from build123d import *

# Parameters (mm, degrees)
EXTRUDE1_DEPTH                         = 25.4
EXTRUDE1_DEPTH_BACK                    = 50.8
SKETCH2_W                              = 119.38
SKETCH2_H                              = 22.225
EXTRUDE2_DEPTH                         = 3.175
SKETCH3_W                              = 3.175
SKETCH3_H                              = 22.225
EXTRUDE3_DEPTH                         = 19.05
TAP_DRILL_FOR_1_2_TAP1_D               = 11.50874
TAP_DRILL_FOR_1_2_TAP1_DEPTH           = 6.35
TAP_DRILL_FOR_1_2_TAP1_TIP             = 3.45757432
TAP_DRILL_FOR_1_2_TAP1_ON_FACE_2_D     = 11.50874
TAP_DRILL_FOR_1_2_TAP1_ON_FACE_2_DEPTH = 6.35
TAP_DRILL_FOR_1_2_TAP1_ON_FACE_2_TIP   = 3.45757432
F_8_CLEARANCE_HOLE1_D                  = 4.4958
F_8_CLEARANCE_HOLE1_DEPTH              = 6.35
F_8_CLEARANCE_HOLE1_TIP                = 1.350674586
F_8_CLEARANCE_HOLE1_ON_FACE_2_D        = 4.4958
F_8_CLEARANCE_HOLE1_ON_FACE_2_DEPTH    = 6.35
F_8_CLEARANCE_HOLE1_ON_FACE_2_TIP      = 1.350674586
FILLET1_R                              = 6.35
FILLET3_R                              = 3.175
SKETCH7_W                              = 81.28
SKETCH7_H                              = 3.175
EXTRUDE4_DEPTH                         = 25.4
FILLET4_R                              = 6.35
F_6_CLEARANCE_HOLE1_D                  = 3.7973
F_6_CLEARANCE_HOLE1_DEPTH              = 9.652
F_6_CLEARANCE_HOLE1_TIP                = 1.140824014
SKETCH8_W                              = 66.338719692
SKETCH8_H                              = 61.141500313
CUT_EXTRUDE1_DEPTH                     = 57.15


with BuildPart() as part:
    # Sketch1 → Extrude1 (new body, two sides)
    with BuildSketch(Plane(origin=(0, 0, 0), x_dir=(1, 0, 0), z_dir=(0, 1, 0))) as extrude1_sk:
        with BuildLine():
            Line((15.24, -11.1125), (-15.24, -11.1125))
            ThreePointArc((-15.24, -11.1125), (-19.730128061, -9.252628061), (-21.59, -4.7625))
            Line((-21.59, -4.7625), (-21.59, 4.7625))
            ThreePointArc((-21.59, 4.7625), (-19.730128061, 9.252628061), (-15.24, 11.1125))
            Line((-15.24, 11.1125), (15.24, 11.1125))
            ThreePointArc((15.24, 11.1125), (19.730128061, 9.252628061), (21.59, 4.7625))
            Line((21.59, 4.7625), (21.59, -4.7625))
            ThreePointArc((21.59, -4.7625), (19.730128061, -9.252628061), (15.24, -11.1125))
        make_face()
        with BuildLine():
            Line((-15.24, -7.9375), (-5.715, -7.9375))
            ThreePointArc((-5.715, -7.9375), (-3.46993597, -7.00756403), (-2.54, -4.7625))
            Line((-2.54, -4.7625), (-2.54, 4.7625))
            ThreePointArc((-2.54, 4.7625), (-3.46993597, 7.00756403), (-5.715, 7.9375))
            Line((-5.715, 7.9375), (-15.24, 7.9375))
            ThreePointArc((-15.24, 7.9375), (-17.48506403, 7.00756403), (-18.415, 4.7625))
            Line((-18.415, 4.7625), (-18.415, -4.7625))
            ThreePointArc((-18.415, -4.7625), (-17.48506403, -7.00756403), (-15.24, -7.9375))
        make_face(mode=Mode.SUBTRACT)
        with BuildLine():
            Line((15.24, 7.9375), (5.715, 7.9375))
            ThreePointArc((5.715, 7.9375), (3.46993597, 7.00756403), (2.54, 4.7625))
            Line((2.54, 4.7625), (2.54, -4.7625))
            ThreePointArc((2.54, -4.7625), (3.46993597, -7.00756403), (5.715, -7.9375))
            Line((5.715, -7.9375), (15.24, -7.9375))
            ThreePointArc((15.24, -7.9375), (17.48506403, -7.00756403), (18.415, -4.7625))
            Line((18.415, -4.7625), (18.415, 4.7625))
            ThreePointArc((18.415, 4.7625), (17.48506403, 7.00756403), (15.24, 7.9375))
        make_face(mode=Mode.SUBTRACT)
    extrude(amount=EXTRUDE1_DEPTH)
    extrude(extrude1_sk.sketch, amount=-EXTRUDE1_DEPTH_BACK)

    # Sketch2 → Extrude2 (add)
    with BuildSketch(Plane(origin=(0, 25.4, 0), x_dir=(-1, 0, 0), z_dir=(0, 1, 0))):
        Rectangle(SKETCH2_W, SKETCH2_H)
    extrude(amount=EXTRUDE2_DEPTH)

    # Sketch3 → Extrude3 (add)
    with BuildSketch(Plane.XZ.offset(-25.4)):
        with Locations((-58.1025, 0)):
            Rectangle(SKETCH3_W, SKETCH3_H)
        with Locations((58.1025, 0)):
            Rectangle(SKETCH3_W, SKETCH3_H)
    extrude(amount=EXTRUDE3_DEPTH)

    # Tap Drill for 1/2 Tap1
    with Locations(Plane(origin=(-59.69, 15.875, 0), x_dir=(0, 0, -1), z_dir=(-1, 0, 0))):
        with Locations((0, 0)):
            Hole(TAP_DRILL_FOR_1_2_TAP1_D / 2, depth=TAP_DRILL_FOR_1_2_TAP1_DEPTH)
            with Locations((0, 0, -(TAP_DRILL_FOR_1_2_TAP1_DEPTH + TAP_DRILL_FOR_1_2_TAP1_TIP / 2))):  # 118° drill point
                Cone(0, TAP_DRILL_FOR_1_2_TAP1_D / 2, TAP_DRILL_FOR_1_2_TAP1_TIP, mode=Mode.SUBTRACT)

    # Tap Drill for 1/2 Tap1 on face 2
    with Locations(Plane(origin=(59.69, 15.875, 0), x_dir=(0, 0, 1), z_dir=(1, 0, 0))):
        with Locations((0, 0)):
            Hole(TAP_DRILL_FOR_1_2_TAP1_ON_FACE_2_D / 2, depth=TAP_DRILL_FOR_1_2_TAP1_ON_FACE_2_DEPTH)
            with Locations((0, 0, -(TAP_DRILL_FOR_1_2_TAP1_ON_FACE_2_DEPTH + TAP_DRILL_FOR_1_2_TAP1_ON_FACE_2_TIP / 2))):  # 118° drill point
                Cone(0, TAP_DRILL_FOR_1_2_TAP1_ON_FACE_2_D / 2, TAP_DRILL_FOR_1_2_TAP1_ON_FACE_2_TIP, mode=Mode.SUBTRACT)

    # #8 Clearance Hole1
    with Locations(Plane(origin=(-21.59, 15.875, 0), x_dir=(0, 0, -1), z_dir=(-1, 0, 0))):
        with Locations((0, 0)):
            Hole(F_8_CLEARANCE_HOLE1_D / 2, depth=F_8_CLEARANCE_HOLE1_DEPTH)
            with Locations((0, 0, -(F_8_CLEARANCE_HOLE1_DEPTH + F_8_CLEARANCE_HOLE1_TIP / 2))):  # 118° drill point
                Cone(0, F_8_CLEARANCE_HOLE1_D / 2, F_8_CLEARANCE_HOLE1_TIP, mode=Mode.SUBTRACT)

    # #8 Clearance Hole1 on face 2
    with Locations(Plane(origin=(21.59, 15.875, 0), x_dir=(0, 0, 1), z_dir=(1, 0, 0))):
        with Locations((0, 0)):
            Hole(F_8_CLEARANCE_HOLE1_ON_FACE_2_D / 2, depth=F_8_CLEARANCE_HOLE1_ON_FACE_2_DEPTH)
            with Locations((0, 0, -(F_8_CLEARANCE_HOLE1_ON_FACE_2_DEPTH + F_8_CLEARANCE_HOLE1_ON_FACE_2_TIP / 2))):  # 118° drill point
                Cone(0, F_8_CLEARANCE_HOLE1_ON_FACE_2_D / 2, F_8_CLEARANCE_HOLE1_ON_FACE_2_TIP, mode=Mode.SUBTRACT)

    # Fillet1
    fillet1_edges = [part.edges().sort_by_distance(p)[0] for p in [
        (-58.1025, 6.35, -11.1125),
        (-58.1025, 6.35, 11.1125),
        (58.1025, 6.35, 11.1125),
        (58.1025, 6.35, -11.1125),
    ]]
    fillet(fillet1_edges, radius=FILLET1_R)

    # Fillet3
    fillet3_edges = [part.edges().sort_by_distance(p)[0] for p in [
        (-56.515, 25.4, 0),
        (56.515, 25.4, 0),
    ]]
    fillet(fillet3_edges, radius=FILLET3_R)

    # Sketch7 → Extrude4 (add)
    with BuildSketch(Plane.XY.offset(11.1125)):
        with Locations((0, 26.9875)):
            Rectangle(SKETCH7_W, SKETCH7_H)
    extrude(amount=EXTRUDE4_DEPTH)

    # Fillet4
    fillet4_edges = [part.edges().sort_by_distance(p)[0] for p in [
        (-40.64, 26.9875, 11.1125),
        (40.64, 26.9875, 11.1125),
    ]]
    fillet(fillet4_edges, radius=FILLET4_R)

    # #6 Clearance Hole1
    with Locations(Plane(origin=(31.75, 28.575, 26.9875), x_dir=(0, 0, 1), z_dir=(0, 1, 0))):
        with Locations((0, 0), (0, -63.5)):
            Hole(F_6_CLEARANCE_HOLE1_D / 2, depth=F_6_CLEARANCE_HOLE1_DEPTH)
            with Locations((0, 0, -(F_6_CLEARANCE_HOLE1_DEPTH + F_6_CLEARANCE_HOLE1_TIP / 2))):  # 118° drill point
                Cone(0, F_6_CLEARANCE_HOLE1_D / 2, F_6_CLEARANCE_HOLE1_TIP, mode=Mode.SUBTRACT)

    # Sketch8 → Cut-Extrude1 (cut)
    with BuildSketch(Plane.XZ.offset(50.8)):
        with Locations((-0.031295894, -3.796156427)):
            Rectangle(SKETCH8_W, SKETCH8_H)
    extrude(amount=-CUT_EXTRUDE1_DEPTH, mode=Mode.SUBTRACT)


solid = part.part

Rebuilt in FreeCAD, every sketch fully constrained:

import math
import FreeCAD as App
import Part
import Sketcher
from FreeCAD import Vector
Q = App.Units.Quantity


def edges_at(feature, points):
    """Names of the edges that pass closest to the given points."""
    edges = feature.Shape.Edges
    near = lambda p: min(range(len(edges)), key=lambda i: edges[i].distToShape(Part.Vertex(*p))[0])
    return sorted({f"Edge{near(p) + 1}" for p in points})


def add_polygon(sketch, points):
    """Adds a closed chain of lines whose ends are joined by coincident constraints."""
    first, n = sketch.GeometryCount, len(points)
    for a, b in zip(points, points[1:] + points[:1]):
        sketch.addGeometry(Part.LineSegment(App.Vector(*a, 0), App.Vector(*b, 0)), False)
    for i in range(n):
        sketch.addConstraint(Sketcher.Constraint("Coincident", first + i, 2, first + (i + 1) % n, 1))

doc = App.newDocument("Part")
body = doc.addObject("PartDesign::Body", "Body")

sketch1 = body.newObject("Sketcher::SketchObject", "Sketch")
sketch1.AttachmentSupport = (doc.getObject("XZ_Plane"), [""])
sketch1.MapMode = "FlatFace"
sketch1.addGeometry(Part.LineSegment(Vector(-15.2, 11.1, 0), Vector(15.2, 11.1, 0)), False)
sketch1.addGeometry(Part.ArcOfCircle(Part.Circle(Vector(15.2, 4.8, 0), Vector(0, 0, 1), 6.3), math.radians(0), math.radians(90)), False)
sketch1.addGeometry(Part.LineSegment(Vector(21.6, 4.8, 0), Vector(21.6, -4.8, 0)), False)
sketch1.addGeometry(Part.ArcOfCircle(Part.Circle(Vector(15.2, -4.8, 0), Vector(0, 0, 1), 6.3), math.radians(-90), math.radians(0)), False)
sketch1.addGeometry(Part.LineSegment(Vector(15.2, -11.1, 0), Vector(-15.2, -11.1, 0)), False)
sketch1.addGeometry(Part.ArcOfCircle(Part.Circle(Vector(-15.2, -4.8, 0), Vector(0, 0, 1), 6.3), math.radians(180), math.radians(270)), False)
sketch1.addGeometry(Part.LineSegment(Vector(-21.6, -4.8, 0), Vector(-21.6, 4.8, 0)), False)
sketch1.addGeometry(Part.ArcOfCircle(Part.Circle(Vector(-15.2, 4.8, 0), Vector(0, 0, 1), 6.3), math.radians(90), math.radians(180)), False)
sketch1.addGeometry(Part.ArcOfCircle(Part.Circle(Vector(15.2, -4.8, 0), Vector(0, 0, 1), 3.2), math.radians(-90), math.radians(0)), False)
sketch1.addGeometry(Part.LineSegment(Vector(18.4, -4.8, 0), Vector(18.4, 4.8, 0)), False)
sketch1.addGeometry(Part.ArcOfCircle(Part.Circle(Vector(15.2, 4.8, 0), Vector(0, 0, 1), 3.2), math.radians(0), math.radians(90)), False)
sketch1.addGeometry(Part.LineSegment(Vector(15.2, 7.9, 0), Vector(5.7, 7.9, 0)), False)
sketch1.addGeometry(Part.ArcOfCircle(Part.Circle(Vector(5.7, 4.8, 0), Vector(0, 0, 1), 3.2), math.radians(90), math.radians(180)), False)
sketch1.addGeometry(Part.LineSegment(Vector(2.5, 4.8, 0), Vector(2.5, -4.8, 0)), False)
sketch1.addGeometry(Part.ArcOfCircle(Part.Circle(Vector(5.7, -4.8, 0), Vector(0, 0, 1), 3.2), math.radians(-180), math.radians(-90)), False)
sketch1.addGeometry(Part.LineSegment(Vector(5.7, -7.9, 0), Vector(15.2, -7.9, 0)), False)
sketch1.addGeometry(Part.ArcOfCircle(Part.Circle(Vector(-15.2, 4.8, 0), Vector(0, 0, 1), 3.2), math.radians(90), math.radians(180)), False)
sketch1.addGeometry(Part.LineSegment(Vector(-18.4, 4.8, 0), Vector(-18.4, -4.8, 0)), False)
sketch1.addGeometry(Part.ArcOfCircle(Part.Circle(Vector(-15.2, -4.8, 0), Vector(0, 0, 1), 3.2), math.radians(-180), math.radians(-90)), False)
sketch1.addGeometry(Part.LineSegment(Vector(-15.2, -7.9, 0), Vector(-5.7, -7.9, 0)), False)
sketch1.addGeometry(Part.ArcOfCircle(Part.Circle(Vector(-5.7, -4.8, 0), Vector(0, 0, 1), 3.2), math.radians(-90), math.radians(0)), False)
sketch1.addGeometry(Part.LineSegment(Vector(-2.5, -4.8, 0), Vector(-2.5, 4.8, 0)), False)
sketch1.addGeometry(Part.ArcOfCircle(Part.Circle(Vector(-5.7, 4.8, 0), Vector(0, 0, 1), 3.2), math.radians(0), math.radians(90)), False)
sketch1.addGeometry(Part.LineSegment(Vector(-5.7, 7.9, 0), Vector(-15.2, 7.9, 0)), False)
sketch1.addConstraint(Sketcher.Constraint("Tangent", 0, 2, 1, 2))
sketch1.addConstraint(Sketcher.Constraint("Tangent", 1, 1, 2, 1))
sketch1.addConstraint(Sketcher.Constraint("Tangent", 2, 2, 3, 2))
sketch1.addConstraint(Sketcher.Constraint("Tangent", 3, 1, 4, 1))
sketch1.addConstraint(Sketcher.Constraint("Tangent", 4, 2, 5, 2))
sketch1.addConstraint(Sketcher.Constraint("Tangent", 5, 1, 6, 1))
sketch1.addConstraint(Sketcher.Constraint("Tangent", 6, 2, 7, 2))
sketch1.addConstraint(Sketcher.Constraint("Tangent", 7, 1, 0, 1))
sketch1.addConstraint(Sketcher.Constraint("Tangent", 8, 2, 9, 1))
sketch1.addConstraint(Sketcher.Constraint("Tangent", 9, 2, 10, 1))
sketch1.addConstraint(Sketcher.Constraint("Tangent", 10, 2, 11, 1))
sketch1.addConstraint(Sketcher.Constraint("Tangent", 11, 2, 12, 1))
sketch1.addConstraint(Sketcher.Constraint("Tangent", 12, 2, 13, 1))
sketch1.addConstraint(Sketcher.Constraint("Tangent", 13, 2, 14, 1))
sketch1.addConstraint(Sketcher.Constraint("Tangent", 14, 2, 15, 1))
sketch1.addConstraint(Sketcher.Constraint("Tangent", 15, 2, 8, 1))
sketch1.addConstraint(Sketcher.Constraint("Tangent", 16, 2, 17, 1))
sketch1.addConstraint(Sketcher.Constraint("Tangent", 17, 2, 18, 1))
sketch1.addConstraint(Sketcher.Constraint("Tangent", 18, 2, 19, 1))
sketch1.addConstraint(Sketcher.Constraint("Tangent", 19, 2, 20, 1))
sketch1.addConstraint(Sketcher.Constraint("Tangent", 20, 2, 21, 1))
sketch1.addConstraint(Sketcher.Constraint("Tangent", 21, 2, 22, 1))
sketch1.addConstraint(Sketcher.Constraint("Tangent", 22, 2, 23, 1))
sketch1.addConstraint(Sketcher.Constraint("Tangent", 23, 2, 16, 1))
sketch1.addConstraint(Sketcher.Constraint("Horizontal", 0))
sketch1.addConstraint(Sketcher.Constraint("Vertical", 2))
sketch1.addConstraint(Sketcher.Constraint("Horizontal", 4))
sketch1.addConstraint(Sketcher.Constraint("Vertical", 6))
sketch1.addConstraint(Sketcher.Constraint("Vertical", 9))
sketch1.addConstraint(Sketcher.Constraint("Horizontal", 11))
sketch1.addConstraint(Sketcher.Constraint("Vertical", 13))
sketch1.addConstraint(Sketcher.Constraint("Horizontal", 15))
sketch1.addConstraint(Sketcher.Constraint("Vertical", 17))
sketch1.addConstraint(Sketcher.Constraint("Horizontal", 19))
sketch1.addConstraint(Sketcher.Constraint("Vertical", 21))
sketch1.addConstraint(Sketcher.Constraint("Horizontal", 23))
sketch1.addConstraint(Sketcher.Constraint("Coincident", 8, 3, 3, 3))
sketch1.addConstraint(Sketcher.Constraint("Coincident", 10, 3, 1, 3))
sketch1.addConstraint(Sketcher.Constraint("Coincident", 16, 3, 7, 3))
sketch1.addConstraint(Sketcher.Constraint("Coincident", 18, 3, 5, 3))
sketch1.addConstraint(Sketcher.Constraint("Equal", 1, 3))
sketch1.addConstraint(Sketcher.Constraint("Equal", 3, 5))
sketch1.addConstraint(Sketcher.Constraint("Equal", 5, 7))
sketch1.addConstraint(Sketcher.Constraint("Equal", 10, 12))
sketch1.addConstraint(Sketcher.Constraint("Equal", 12, 14))
sketch1.addConstraint(Sketcher.Constraint("Equal", 14, 16))
sketch1.addConstraint(Sketcher.Constraint("Equal", 18, 20))
sketch1.addConstraint(Sketcher.Constraint("Equal", 20, 22))
sketch1.addConstraint(Sketcher.Constraint("Symmetric", 1, 3, 5, 3, -1, 1))
sketch1.addConstraint(Sketcher.Constraint("Equal", 15, 19))
sketch1.addConstraint(Sketcher.Constraint("Equal", 23, 2))
sketch1.addConstraint(Sketcher.Constraint("Radius", 1, Q("0.25 in")))
sketch1.addConstraint(Sketcher.Constraint("DistanceX", 0, 1, 0, 2, Q("1.2 in")))
sketch1.addConstraint(Sketcher.Constraint("Radius", 8, Q("0.125 in")))
sketch1.addConstraint(Sketcher.Constraint("DistanceX", -1, 1, 12, 2, Q("0.1 in")))
pad1 = body.newObject("PartDesign::Pad", "Pad")
pad1.Profile = sketch1
pad1.Type = "TwoLengths"
pad1.Length = Q("1 in")
pad1.Length2 = Q("2 in")
pad1.Reversed = True

sketch2 = body.newObject("Sketcher::SketchObject", "Sketch001")
sketch2.AttachmentSupport = (doc.getObject("XZ_Plane"), [""])
sketch2.MapMode = "FlatFace"
sketch2.AttachmentOffset = App.Placement(Vector(0, 0, -1 * 25.4), App.Rotation())
add_polygon(sketch2, [(60, 11), (60, -11), (-60, -11), (-60, 11)])
sketch2.addConstraint(Sketcher.Constraint("Vertical", 0))
sketch2.addConstraint(Sketcher.Constraint("Horizontal", 1))
sketch2.addConstraint(Sketcher.Constraint("Vertical", 2))
sketch2.addConstraint(Sketcher.Constraint("Horizontal", 3))
sketch2.addConstraint(Sketcher.Constraint("Symmetric", 0, 2, 2, 2, -1, 1))
sketch2.addConstraint(Sketcher.Constraint("DistanceX", 1, 2, 1, 1, Q("4.7 in")))
sketch2.addConstraint(Sketcher.Constraint("DistanceY", 0, 2, 0, 1, Q("0.875 in")))
pad2 = body.newObject("PartDesign::Pad", "Pad001")
pad2.Profile = sketch2
pad2.Length = Q("0.125 in")
pad2.Reversed = True

sketch3 = body.newObject("Sketcher::SketchObject", "Sketch002")
sketch3.AttachmentSupport = (doc.getObject("XZ_Plane"), [""])
sketch3.MapMode = "FlatFace"
sketch3.AttachmentOffset = App.Placement(Vector(0, 0, -1 * 25.4), App.Rotation())
add_polygon(sketch3, [(-59.7, 11.1), (-59.7, -11.1), (-56.5, -11.1), (-56.5, 11.1)])
add_polygon(sketch3, [(56.5, 11.1), (56.5, -11.1), (59.7, -11.1), (59.7, 11.1)])
sketch3.addConstraint(Sketcher.Constraint("Vertical", 0))
sketch3.addConstraint(Sketcher.Constraint("Horizontal", 1))
sketch3.addConstraint(Sketcher.Constraint("Vertical", 2))
sketch3.addConstraint(Sketcher.Constraint("Horizontal", 3))
sketch3.addConstraint(Sketcher.Constraint("Vertical", 4))
sketch3.addConstraint(Sketcher.Constraint("Horizontal", 5))
sketch3.addConstraint(Sketcher.Constraint("Vertical", 6))
sketch3.addConstraint(Sketcher.Constraint("Horizontal", 7))
sketch3.addConstraint(Sketcher.Constraint("Symmetric", 2, 2, 4, 2, -1, 1))
sketch3.addConstraint(Sketcher.Constraint("Symmetric", 0, 2, 6, 2, -1, 1))
sketch3.addConstraint(Sketcher.Constraint("Horizontal", 1, 2, 4, 2))
sketch3.addConstraint(Sketcher.Constraint("DistanceX", 0, 2, 5, 2, Q("4.7 in")))
sketch3.addConstraint(Sketcher.Constraint("DistanceX", 1, 1, 1, 2, Q("0.125 in")))
sketch3.addConstraint(Sketcher.Constraint("DistanceY", 0, 2, 0, 1, Q("0.875 in")))
pad3 = body.newObject("PartDesign::Pad", "Pad002")
pad3.Profile = sketch3
pad3.Length = Q("0.75 in")

sketch4 = body.newObject("Sketcher::SketchObject", "Sketch003")
sketch4.AttachmentSupport = (doc.getObject("YZ_Plane"), [""])
sketch4.MapMode = "FlatFace"
sketch4.AttachmentOffset = App.Placement(Vector(0, 0, -2.35 * 25.4), App.Rotation())
sketch4.addGeometry(Part.Circle(Vector(16, 0, 0), Vector(0, 0, 1), 6), False)
sketch4.addConstraint(Sketcher.Constraint("PointOnObject", 0, 3, -1))
sketch4.addConstraint(Sketcher.Constraint("Diameter", 0, Q("0.4531 in")))
sketch4.addConstraint(Sketcher.Constraint("DistanceX", -1, 1, 0, 3, Q("0.625 in")))
doc.recompute()
hole = body.newObject("PartDesign::Hole", "Hole")
hole.Profile = sketch4
hole.ThreadType = "None"
hole.Diameter = Q("0.4531 in")
hole.DepthType = "Dimension"
hole.Depth = Q("0.25 in")
hole.DrillPoint = "Angled"
hole.DrillPointAngle = 118
hole.Reversed = True

sketch5 = body.newObject("Sketcher::SketchObject", "Sketch004")
sketch5.AttachmentSupport = (doc.getObject("YZ_Plane"), [""])
sketch5.MapMode = "FlatFace"
sketch5.AttachmentOffset = App.Placement(Vector(0, 0, 2.35 * 25.4), App.Rotation())
sketch5.addGeometry(Part.Circle(Vector(16, 0, 0), Vector(0, 0, 1), 6), False)
sketch5.addConstraint(Sketcher.Constraint("PointOnObject", 0, 3, -1))
sketch5.addConstraint(Sketcher.Constraint("Diameter", 0, Q("0.4531 in")))
sketch5.addConstraint(Sketcher.Constraint("DistanceX", -1, 1, 0, 3, Q("0.625 in")))
doc.recompute()
hole2 = body.newObject("PartDesign::Hole", "Hole001")
hole2.Profile = sketch5
hole2.ThreadType = "None"
hole2.Diameter = Q("0.4531 in")
hole2.DepthType = "Dimension"
hole2.Depth = Q("0.25 in")
hole2.DrillPoint = "Angled"
hole2.DrillPointAngle = 118

sketch6 = body.newObject("Sketcher::SketchObject", "Sketch005")
sketch6.AttachmentSupport = (doc.getObject("YZ_Plane"), [""])
sketch6.MapMode = "FlatFace"
sketch6.AttachmentOffset = App.Placement(Vector(0, 0, -0.85 * 25.4), App.Rotation())
sketch6.addGeometry(Part.Circle(Vector(15.9, 0, 0), Vector(0, 0, 1), 2.2), False)
sketch6.addConstraint(Sketcher.Constraint("PointOnObject", 0, 3, -1))
sketch6.addConstraint(Sketcher.Constraint("Diameter", 0, Q("0.177 in")))
sketch6.addConstraint(Sketcher.Constraint("DistanceX", -1, 1, 0, 3, Q("0.625 in")))
doc.recompute()
hole3 = body.newObject("PartDesign::Hole", "Hole002")
hole3.Profile = sketch6
hole3.ThreadType = "None"
hole3.Diameter = Q("0.177 in")
hole3.DepthType = "Dimension"
hole3.Depth = Q("0.25 in")
hole3.DrillPoint = "Angled"
hole3.DrillPointAngle = 118
hole3.Reversed = True

sketch7 = body.newObject("Sketcher::SketchObject", "Sketch006")
sketch7.AttachmentSupport = (doc.getObject("YZ_Plane"), [""])
sketch7.MapMode = "FlatFace"
sketch7.AttachmentOffset = App.Placement(Vector(0, 0, 0.85 * 25.4), App.Rotation())
sketch7.addGeometry(Part.Circle(Vector(15.9, 0, 0), Vector(0, 0, 1), 2.2), False)
sketch7.addConstraint(Sketcher.Constraint("PointOnObject", 0, 3, -1))
sketch7.addConstraint(Sketcher.Constraint("Diameter", 0, Q("0.177 in")))
sketch7.addConstraint(Sketcher.Constraint("DistanceX", -1, 1, 0, 3, Q("0.625 in")))
doc.recompute()
hole4 = body.newObject("PartDesign::Hole", "Hole003")
hole4.Profile = sketch7
hole4.ThreadType = "None"
hole4.Diameter = Q("0.177 in")
hole4.DepthType = "Dimension"
hole4.Depth = Q("0.25 in")
hole4.DrillPoint = "Angled"
hole4.DrillPointAngle = 118
doc.recompute()

fillet = body.newObject("PartDesign::Fillet", "Fillet")
fillet.Base = (hole4, edges_at(hole4, [
    (-58.102, 6.35, -11.113),
    (-58.102, 6.35, 11.113),
    (58.102, 6.35, 11.113),
    (58.102, 6.35, -11.113),
]))
fillet.Radius = Q("0.25 in")
doc.recompute()

fillet2 = body.newObject("PartDesign::Fillet", "Fillet001")
fillet2.Base = (fillet, edges_at(fillet, [(-56.515, 25.4, 0), (56.515, 25.4, 0)]))
fillet2.Radius = Q("0.125 in")

sketch8 = body.newObject("Sketcher::SketchObject", "Sketch007")
sketch8.AttachmentSupport = (doc.getObject("XY_Plane"), [""])
sketch8.MapMode = "FlatFace"
sketch8.AttachmentOffset = App.Placement(Vector(0, 0, 0.4375 * 25.4), App.Rotation())
add_polygon(sketch8, [(-40.6, 28.6), (-40.6, 25.4), (40.6, 25.4), (40.6, 28.6)])
sketch8.addConstraint(Sketcher.Constraint("Vertical", 0))
sketch8.addConstraint(Sketcher.Constraint("Horizontal", 1))
sketch8.addConstraint(Sketcher.Constraint("Vertical", 2))
sketch8.addConstraint(Sketcher.Constraint("Horizontal", 3))
sketch8.addConstraint(Sketcher.Constraint("DistanceX", 1, 1, 1, 2, Q("3.2 in")))
sketch8.addConstraint(Sketcher.Constraint("DistanceY", -1, 1, 0, 2, Q("1 in")))
sketch8.addConstraint(Sketcher.Constraint("DistanceX", 0, 2, -1, 1, Q("1.6 in")))
sketch8.addConstraint(Sketcher.Constraint("DistanceY", 0, 2, 0, 1, Q("0.125 in")))
pad4 = body.newObject("PartDesign::Pad", "Pad003")
pad4.Profile = sketch8
pad4.Length = Q("1 in")
doc.recompute()

fillet3 = body.newObject("PartDesign::Fillet", "Fillet002")
fillet3.Base = (pad4, edges_at(pad4, [(-40.64, 26.988, 11.113), (40.64, 26.988, 11.113)]))
fillet3.Radius = Q("0.25 in")

sketch9 = body.newObject("Sketcher::SketchObject", "Sketch008")
sketch9.AttachmentSupport = (doc.getObject("XZ_Plane"), [""])
sketch9.MapMode = "FlatFace"
sketch9.AttachmentOffset = App.Placement(Vector(0, 0, -1.125 * 25.4), App.Rotation())
sketch9.addGeometry(Part.Circle(Vector(31.8, 27, 0), Vector(0, 0, 1), 1.9), False)
sketch9.addGeometry(Part.Circle(Vector(-31.8, 27, 0), Vector(0, 0, 1), 1.9), False)
sketch9.addConstraint(Sketcher.Constraint("Equal", 0, 1))
sketch9.addConstraint(Sketcher.Constraint("Symmetric", 0, 3, 1, 3, -2))
sketch9.addConstraint(Sketcher.Constraint("Diameter", 0, Q("0.1495 in")))
sketch9.addConstraint(Sketcher.Constraint("DistanceX", 1, 3, 0, 3, Q("2.5 in")))
sketch9.addConstraint(Sketcher.Constraint("DistanceY", -1, 1, 0, 3, Q("1.0625 in")))
doc.recompute()
hole5 = body.newObject("PartDesign::Hole", "Hole004")
hole5.Profile = sketch9
hole5.ThreadType = "None"
hole5.Diameter = Q("0.1495 in")
hole5.DepthType = "Dimension"
hole5.Depth = Q("0.38 in")
hole5.DrillPoint = "Angled"
hole5.DrillPointAngle = 118
hole5.Reversed = True

sketch10 = body.newObject("Sketcher::SketchObject", "Sketch009")
sketch10.AttachmentSupport = (doc.getObject("XZ_Plane"), [""])
sketch10.MapMode = "FlatFace"
sketch10.AttachmentOffset = App.Placement(Vector(0, 0, 2 * 25.4), App.Rotation())
add_polygon(sketch10, [(-33, 27), (-33, -34), (33, -34), (33, 27)])
sketch10.addConstraint(Sketcher.Constraint("Vertical", 0))
sketch10.addConstraint(Sketcher.Constraint("Horizontal", 1))
sketch10.addConstraint(Sketcher.Constraint("Vertical", 2))
sketch10.addConstraint(Sketcher.Constraint("Horizontal", 3))
sketch10.addConstraint(Sketcher.Constraint("DistanceY", 0, 2, 0, 1, 61.1415))
sketch10.addConstraint(Sketcher.Constraint("DistanceX", 1, 1, 1, 2, 66.33872))
sketch10.addConstraint(Sketcher.Constraint("DistanceX", 0, 2, -1, 1, 33.200656))
sketch10.addConstraint(Sketcher.Constraint("DistanceY", 0, 2, -1, 1, 34.366907))
pocket1 = body.newObject("PartDesign::Pocket", "Pocket")
pocket1.Profile = sketch10
pocket1.Length = Q("2.25 in")

doc.recompute()
